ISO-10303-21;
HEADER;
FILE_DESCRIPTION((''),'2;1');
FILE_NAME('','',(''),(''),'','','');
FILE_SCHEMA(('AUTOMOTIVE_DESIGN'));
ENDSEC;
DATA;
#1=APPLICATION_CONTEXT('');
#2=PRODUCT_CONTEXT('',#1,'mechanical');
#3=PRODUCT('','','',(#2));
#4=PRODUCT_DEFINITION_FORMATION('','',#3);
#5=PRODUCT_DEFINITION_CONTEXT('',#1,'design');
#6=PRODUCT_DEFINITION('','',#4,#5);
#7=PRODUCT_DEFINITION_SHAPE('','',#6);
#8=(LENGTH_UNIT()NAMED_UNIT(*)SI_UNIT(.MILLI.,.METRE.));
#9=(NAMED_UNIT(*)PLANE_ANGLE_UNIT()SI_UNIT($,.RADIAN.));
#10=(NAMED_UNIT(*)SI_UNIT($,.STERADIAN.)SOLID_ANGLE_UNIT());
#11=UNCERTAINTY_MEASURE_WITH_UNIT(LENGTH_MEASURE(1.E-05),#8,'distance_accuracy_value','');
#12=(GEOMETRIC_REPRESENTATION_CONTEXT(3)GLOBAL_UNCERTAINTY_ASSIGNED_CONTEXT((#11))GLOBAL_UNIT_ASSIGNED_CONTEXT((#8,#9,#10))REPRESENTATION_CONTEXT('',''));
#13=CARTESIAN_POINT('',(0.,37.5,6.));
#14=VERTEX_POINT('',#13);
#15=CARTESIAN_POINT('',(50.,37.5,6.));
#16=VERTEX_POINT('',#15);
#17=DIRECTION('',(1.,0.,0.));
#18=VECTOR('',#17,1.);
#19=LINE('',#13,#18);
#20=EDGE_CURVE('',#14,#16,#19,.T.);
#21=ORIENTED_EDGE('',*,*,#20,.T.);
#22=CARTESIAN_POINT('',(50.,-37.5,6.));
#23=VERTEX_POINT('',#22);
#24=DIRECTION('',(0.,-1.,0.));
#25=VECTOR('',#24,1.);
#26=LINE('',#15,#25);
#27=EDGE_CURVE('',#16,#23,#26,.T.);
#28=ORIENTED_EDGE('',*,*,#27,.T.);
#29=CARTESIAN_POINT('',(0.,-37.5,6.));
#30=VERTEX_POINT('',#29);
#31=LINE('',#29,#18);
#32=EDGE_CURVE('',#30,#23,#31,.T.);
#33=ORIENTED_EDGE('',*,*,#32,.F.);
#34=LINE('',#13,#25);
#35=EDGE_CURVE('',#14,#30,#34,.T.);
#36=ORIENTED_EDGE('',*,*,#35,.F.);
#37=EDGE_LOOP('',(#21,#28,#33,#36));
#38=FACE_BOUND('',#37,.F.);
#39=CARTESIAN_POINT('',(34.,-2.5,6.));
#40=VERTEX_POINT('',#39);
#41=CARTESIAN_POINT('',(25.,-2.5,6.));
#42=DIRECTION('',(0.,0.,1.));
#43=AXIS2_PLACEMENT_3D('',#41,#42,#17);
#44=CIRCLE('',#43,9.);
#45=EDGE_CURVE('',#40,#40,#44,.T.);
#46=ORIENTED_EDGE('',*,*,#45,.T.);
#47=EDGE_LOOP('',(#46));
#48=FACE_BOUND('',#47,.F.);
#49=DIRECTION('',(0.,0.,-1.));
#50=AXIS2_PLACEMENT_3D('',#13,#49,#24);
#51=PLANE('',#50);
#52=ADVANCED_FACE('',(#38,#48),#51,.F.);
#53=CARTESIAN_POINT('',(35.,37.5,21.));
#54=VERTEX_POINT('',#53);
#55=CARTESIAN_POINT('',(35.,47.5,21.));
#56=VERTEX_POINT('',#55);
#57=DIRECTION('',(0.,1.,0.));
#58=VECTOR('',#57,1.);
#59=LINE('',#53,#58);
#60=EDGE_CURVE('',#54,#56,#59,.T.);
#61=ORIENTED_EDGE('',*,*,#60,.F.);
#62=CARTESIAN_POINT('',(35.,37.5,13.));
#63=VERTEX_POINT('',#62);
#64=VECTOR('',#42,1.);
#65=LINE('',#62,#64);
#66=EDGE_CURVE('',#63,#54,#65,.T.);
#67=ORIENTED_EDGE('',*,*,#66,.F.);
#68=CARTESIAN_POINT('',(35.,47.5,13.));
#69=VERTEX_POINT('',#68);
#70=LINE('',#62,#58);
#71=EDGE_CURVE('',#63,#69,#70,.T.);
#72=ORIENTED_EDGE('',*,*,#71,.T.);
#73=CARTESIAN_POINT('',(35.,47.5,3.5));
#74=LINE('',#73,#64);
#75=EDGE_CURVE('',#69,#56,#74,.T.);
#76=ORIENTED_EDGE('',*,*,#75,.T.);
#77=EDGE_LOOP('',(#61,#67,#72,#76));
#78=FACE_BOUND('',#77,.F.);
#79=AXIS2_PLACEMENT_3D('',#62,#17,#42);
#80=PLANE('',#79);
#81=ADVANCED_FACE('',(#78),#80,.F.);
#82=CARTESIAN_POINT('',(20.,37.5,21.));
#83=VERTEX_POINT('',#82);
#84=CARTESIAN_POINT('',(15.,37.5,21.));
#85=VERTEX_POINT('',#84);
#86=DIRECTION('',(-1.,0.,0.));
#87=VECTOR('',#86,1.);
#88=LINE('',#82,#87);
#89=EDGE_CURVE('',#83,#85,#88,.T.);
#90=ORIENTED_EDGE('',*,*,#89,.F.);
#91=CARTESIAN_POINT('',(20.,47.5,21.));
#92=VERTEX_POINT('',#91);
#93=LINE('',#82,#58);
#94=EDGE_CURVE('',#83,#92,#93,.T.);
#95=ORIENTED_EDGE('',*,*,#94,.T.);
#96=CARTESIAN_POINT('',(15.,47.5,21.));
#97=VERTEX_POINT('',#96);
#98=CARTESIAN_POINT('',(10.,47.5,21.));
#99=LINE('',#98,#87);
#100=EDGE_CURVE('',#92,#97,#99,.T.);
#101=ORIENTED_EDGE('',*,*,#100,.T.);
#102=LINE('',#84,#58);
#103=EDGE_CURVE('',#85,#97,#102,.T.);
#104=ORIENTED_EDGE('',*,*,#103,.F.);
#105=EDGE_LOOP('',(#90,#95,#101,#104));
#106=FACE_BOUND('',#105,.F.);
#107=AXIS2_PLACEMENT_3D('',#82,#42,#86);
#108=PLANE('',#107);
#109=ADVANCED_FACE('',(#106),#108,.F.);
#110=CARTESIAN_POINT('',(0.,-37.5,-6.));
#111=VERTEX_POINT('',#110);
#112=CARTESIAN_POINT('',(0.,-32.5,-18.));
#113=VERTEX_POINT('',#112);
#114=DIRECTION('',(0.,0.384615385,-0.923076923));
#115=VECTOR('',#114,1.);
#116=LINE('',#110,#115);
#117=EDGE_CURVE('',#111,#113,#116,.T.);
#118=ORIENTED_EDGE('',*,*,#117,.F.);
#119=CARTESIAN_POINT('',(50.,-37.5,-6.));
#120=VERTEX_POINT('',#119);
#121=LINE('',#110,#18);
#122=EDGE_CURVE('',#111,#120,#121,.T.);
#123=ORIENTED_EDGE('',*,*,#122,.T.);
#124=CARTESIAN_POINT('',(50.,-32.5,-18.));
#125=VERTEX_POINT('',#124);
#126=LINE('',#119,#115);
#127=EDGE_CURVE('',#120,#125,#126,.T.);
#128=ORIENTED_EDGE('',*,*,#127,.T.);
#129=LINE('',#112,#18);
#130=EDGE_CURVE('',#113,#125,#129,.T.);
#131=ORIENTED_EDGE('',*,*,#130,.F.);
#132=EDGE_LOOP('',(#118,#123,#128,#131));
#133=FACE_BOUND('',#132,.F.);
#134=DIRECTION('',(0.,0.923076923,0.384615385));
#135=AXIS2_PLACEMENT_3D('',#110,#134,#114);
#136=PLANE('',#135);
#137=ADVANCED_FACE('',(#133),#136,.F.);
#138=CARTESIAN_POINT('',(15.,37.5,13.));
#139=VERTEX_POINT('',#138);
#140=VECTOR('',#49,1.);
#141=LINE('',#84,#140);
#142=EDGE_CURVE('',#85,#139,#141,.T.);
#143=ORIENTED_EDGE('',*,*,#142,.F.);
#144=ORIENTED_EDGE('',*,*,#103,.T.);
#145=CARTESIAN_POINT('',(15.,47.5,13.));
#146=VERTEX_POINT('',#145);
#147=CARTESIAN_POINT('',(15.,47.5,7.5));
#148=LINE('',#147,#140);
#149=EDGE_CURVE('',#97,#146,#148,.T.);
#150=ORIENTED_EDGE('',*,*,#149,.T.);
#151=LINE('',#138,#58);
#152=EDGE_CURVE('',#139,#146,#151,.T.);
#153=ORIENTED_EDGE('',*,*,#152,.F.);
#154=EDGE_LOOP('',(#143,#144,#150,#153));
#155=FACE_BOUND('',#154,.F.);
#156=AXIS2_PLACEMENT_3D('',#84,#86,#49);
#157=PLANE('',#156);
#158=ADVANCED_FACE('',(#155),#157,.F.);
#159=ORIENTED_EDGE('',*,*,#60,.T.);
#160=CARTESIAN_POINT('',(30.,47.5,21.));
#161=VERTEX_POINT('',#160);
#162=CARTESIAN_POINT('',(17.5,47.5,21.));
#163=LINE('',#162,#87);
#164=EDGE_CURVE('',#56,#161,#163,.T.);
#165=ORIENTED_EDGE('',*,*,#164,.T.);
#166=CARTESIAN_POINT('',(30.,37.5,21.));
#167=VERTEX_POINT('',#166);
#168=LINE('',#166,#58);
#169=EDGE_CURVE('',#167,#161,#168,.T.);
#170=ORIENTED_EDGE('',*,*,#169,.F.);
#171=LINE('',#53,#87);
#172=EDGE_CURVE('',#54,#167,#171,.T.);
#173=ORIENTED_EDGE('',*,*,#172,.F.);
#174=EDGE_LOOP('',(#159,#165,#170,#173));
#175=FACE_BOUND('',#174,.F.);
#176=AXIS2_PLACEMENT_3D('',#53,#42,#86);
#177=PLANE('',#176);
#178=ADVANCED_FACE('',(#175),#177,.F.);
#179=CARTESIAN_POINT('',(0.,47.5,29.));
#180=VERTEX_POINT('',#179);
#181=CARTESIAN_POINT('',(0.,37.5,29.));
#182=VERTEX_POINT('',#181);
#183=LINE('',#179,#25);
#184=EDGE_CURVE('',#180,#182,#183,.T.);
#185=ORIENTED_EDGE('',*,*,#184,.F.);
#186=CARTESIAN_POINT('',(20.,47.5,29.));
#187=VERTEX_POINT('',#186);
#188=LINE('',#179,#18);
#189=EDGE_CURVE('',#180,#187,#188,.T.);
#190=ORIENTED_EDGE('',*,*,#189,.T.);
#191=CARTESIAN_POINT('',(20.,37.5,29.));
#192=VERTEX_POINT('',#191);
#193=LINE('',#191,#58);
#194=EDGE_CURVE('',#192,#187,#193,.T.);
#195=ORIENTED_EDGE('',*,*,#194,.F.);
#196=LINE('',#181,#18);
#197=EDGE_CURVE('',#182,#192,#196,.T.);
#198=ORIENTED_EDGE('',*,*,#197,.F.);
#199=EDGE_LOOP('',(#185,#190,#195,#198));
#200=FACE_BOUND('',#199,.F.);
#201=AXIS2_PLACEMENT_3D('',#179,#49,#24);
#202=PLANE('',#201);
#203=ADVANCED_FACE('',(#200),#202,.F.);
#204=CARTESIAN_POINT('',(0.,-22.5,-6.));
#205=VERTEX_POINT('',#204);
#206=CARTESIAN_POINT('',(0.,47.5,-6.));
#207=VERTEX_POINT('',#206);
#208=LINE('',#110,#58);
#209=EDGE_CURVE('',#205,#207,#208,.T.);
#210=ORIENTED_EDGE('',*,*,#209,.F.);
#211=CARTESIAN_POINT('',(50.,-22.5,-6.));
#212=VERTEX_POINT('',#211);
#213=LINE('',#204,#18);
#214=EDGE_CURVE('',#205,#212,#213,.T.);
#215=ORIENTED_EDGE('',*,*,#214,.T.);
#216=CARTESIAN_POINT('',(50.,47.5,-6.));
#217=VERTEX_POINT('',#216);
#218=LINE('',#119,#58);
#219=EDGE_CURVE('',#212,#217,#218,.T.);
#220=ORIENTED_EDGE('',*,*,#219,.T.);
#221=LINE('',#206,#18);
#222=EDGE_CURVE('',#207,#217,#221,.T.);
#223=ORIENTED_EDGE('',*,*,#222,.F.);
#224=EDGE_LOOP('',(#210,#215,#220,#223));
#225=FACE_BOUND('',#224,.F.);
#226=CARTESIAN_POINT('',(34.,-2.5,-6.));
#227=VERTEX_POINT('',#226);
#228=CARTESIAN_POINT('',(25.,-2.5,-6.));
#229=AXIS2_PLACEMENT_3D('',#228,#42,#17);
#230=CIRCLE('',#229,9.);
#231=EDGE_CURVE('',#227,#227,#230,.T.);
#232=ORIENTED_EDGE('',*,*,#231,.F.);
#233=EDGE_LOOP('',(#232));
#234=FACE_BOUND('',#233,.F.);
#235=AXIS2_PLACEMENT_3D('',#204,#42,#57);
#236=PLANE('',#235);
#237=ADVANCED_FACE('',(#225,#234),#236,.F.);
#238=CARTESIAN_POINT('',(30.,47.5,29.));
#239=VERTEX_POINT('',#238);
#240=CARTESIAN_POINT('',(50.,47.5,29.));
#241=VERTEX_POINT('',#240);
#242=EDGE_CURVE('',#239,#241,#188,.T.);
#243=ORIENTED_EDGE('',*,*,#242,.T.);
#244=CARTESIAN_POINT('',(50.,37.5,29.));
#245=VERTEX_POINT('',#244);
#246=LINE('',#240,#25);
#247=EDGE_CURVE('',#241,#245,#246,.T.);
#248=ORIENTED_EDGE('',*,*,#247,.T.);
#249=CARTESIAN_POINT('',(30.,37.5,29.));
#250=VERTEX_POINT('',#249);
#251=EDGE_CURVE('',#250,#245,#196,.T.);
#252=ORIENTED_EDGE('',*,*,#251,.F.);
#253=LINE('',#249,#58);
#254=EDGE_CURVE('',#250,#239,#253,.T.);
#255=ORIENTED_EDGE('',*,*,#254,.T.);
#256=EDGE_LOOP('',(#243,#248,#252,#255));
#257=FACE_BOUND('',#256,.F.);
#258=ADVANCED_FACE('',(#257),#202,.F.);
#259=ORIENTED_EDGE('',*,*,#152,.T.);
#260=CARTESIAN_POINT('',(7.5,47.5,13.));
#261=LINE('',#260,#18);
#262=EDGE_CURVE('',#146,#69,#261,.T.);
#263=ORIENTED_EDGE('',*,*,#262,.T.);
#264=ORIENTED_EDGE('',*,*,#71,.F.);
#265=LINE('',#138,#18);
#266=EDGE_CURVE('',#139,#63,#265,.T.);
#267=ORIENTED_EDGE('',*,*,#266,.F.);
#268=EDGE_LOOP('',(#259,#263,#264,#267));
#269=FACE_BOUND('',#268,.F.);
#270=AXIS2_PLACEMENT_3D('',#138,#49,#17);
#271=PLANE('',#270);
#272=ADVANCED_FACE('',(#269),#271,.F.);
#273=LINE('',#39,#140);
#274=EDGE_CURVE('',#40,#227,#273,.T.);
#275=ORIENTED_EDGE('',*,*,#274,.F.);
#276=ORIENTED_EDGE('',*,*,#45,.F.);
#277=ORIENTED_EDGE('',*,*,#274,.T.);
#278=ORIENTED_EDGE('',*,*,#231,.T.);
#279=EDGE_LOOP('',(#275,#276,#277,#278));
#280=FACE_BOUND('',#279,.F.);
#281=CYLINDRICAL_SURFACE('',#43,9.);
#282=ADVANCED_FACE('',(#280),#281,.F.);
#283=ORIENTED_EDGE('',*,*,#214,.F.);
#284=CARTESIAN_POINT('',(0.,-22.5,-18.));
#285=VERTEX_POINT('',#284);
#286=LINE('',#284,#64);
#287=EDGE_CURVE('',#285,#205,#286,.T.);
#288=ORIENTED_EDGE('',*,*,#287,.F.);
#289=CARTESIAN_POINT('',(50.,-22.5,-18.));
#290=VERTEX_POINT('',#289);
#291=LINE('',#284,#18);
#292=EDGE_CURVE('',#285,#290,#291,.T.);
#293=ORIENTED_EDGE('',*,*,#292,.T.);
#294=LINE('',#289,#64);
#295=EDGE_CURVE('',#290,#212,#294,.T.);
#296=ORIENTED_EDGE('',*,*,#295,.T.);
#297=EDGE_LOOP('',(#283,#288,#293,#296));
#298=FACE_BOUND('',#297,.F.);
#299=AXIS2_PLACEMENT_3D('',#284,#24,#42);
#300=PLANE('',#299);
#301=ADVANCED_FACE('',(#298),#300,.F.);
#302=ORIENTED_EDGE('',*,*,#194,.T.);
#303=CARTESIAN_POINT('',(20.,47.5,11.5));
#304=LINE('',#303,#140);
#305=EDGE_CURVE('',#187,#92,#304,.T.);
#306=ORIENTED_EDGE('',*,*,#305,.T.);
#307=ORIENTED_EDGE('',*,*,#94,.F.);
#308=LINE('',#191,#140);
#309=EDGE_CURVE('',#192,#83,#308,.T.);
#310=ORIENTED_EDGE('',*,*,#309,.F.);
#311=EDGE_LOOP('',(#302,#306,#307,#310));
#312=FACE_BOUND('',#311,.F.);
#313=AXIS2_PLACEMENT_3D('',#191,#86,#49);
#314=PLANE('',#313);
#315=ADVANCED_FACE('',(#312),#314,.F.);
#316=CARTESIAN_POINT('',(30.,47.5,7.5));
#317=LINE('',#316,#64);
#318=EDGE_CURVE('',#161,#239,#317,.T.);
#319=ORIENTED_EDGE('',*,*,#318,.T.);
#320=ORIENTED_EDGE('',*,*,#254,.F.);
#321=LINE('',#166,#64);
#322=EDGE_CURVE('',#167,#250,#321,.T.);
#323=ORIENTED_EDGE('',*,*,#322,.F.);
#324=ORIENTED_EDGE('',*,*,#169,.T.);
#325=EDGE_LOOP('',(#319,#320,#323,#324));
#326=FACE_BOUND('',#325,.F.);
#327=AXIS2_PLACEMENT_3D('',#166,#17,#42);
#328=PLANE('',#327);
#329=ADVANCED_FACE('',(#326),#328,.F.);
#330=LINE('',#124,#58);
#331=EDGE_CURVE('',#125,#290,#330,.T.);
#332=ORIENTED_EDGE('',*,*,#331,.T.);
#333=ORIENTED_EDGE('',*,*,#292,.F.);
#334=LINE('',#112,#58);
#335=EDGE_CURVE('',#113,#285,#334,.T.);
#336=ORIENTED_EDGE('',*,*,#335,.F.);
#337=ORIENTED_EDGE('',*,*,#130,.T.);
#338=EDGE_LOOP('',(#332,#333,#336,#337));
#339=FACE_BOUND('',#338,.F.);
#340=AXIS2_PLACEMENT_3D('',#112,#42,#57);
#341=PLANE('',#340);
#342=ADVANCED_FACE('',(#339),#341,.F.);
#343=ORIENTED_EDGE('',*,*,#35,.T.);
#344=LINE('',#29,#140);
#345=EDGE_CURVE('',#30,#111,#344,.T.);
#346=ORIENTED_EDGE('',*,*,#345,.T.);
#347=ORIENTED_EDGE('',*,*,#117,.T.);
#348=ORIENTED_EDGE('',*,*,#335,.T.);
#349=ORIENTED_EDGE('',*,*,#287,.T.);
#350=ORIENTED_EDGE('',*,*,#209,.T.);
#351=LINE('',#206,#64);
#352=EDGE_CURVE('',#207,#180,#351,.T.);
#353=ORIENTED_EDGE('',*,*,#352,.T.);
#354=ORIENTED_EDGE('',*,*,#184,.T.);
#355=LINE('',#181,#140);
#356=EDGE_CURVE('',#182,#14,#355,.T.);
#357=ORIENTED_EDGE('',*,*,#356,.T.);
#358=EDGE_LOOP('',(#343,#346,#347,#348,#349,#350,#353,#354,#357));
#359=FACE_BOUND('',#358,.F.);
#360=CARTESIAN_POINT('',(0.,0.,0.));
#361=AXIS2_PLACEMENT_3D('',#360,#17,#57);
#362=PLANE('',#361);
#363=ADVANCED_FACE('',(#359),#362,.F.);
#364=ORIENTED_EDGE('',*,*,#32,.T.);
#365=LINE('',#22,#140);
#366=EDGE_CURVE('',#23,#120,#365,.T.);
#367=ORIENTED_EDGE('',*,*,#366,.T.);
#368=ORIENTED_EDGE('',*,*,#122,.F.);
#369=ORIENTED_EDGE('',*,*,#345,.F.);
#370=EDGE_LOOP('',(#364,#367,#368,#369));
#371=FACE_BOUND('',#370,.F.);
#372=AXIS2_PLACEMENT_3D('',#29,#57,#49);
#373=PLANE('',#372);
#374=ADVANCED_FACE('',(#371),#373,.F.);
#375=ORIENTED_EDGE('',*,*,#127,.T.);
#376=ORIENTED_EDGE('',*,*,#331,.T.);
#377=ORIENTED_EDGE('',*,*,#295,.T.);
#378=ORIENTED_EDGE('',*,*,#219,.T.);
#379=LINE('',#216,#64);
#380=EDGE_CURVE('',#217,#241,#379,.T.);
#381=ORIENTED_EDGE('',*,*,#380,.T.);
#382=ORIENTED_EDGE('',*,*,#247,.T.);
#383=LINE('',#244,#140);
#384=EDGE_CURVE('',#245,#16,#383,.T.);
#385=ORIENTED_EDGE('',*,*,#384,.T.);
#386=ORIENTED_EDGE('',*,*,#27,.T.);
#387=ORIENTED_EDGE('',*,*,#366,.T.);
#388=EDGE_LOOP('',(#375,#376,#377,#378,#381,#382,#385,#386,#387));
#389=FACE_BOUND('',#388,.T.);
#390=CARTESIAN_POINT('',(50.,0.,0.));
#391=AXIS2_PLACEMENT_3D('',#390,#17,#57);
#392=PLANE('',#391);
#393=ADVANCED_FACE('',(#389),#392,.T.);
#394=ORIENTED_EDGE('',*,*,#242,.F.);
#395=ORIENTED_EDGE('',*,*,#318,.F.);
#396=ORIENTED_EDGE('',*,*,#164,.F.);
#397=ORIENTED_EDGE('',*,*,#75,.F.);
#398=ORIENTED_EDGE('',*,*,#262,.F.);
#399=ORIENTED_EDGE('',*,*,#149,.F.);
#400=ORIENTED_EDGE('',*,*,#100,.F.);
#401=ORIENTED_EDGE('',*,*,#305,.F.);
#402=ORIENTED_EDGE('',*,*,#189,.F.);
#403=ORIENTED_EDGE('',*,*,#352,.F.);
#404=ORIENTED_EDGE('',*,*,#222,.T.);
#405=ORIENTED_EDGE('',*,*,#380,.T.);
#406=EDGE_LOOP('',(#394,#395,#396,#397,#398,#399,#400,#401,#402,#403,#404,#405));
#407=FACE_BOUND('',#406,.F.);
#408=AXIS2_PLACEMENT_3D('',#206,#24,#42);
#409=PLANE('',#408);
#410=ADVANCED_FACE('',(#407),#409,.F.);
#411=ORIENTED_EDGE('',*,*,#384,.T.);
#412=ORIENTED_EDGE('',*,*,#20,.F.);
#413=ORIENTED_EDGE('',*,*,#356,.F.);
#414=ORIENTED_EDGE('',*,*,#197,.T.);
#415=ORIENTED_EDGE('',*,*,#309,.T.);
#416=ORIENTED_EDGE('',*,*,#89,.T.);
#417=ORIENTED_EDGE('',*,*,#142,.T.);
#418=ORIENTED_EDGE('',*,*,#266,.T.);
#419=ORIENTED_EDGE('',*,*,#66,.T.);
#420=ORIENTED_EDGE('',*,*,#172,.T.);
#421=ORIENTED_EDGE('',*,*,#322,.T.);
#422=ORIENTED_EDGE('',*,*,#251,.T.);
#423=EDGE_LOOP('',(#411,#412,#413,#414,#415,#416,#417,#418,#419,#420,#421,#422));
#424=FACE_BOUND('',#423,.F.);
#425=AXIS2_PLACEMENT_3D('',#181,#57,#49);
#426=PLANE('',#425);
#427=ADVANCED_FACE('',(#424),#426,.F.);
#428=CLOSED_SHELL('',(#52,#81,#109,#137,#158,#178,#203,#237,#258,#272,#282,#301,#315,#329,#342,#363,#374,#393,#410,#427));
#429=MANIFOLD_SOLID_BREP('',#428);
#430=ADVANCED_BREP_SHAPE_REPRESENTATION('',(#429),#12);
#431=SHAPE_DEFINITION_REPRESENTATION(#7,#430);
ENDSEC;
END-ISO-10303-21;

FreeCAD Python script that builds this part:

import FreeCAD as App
import Part
import Sketcher

V = App.Vector


def add_polygon(sketch, points):
    """Adds a closed chain of lines whose ends are joined by coincident constraints."""
    first, n = sketch.GeometryCount, len(points)
    for a, b in zip(points, points[1:] + points[:1]):
        sketch.addGeometry(Part.LineSegment(App.Vector(*a, 0), App.Vector(*b, 0)), False)
    for i in range(n):
        sketch.addConstraint(Sketcher.Constraint("Coincident", first + i, 2, first + (i + 1) % n, 1))

doc = App.newDocument("Part")
body = doc.addObject("PartDesign::Body", "Body")

# Sketch on YZ plane
sketch1 = body.newObject("Sketcher::SketchObject", "Sketch")
sketch1.AttachmentSupport = (doc.getObject("YZ_Plane"), [""])
sketch1.MapMode = "FlatFace"
add_polygon(sketch1, [(37.5, 6), (-37.5, 6), (-37.5, -6), (-32.5, -18), (-22.5, -18), (-22.5, -6), (47.5, -6), (47.5, 29), (37.5, 29)])  # lines 0-8
sketch1.addConstraint([
    Sketcher.Constraint("Horizontal", 0),
    Sketcher.Constraint("Vertical", 1),
    Sketcher.Constraint("Horizontal", 3),
    Sketcher.Constraint("Vertical", 4),
    Sketcher.Constraint("Horizontal", 5),
    Sketcher.Constraint("Vertical", 6),
    Sketcher.Constraint("Horizontal", 7),
    Sketcher.Constraint("Vertical", 8),
    Sketcher.Constraint("Symmetric", 1, 2, 8, 2, -1, 1),
    Sketcher.Constraint("Horizontal", 1, 2, 4, 2),
    Sketcher.Constraint("Equal", 3, 7),
    Sketcher.Constraint("Equal", 1, 4),
    Sketcher.Constraint("DistanceX", 0, 2, 0, 1, 75.0),
    Sketcher.Constraint("DistanceX", 3, 1, 3, 2, 10.0),
    Sketcher.Constraint("DistanceX", 5, 1, 5, 2, 70.0),
    Sketcher.Constraint("DistanceY", 1, 2, 1, 1, 12.0),
    Sketcher.Constraint("DistanceY", 6, 1, 6, 2, 35.0),
])
pad1 = body.newObject("PartDesign::Pad", "Pad")
pad1.Profile = sketch1
pad1.Length = 50

# Sketch on XZ plane
sketch2 = body.newObject("Sketcher::SketchObject", "Sketch001")
sketch2.AttachmentSupport = (doc.getObject("XZ_Plane"), [""])
sketch2.MapMode = "FlatFace"
sketch2.AttachmentOffset = App.Placement(V(0, 0, -37.5), App.Rotation())
add_polygon(sketch2, [(30, 29), (20, 29), (20, 21), (15, 21), (15, 13), (35, 13), (35, 21), (30, 21)])  # lines 0-7
sketch2.addConstraint([
    Sketcher.Constraint("Horizontal", 0),
    Sketcher.Constraint("Vertical", 1),
    Sketcher.Constraint("Horizontal", 2),
    Sketcher.Constraint("Vertical", 3),
    Sketcher.Constraint("Horizontal", 4),
    Sketcher.Constraint("Vertical", 5),
    Sketcher.Constraint("Horizontal", 6),
    Sketcher.Constraint("Vertical", 7),
    Sketcher.Constraint("Horizontal", 2, 2, 5, 2),
    Sketcher.Constraint("Equal", 2, 6),
    Sketcher.Constraint("Equal", 1, 3),
    Sketcher.Constraint("DistanceX", 0, 2, 0, 1, 10.0),
    Sketcher.Constraint("DistanceX", 2, 2, 2, 1, 5.0),
    Sketcher.Constraint("DistanceY", 1, 2, 1, 1, 8.0),
    Sketcher.Constraint("DistanceX", -1, 1, 0, 2, 20.0),
    Sketcher.Constraint("DistanceY", -1, 1, 0, 2, 29.0),
])
pocket1 = body.newObject("PartDesign::Pocket", "Pocket")
pocket1.Profile = sketch2
pocket1.Length = 25

# Sketch on XY plane
sketch3 = body.newObject("Sketcher::SketchObject", "Sketch002")
sketch3.AttachmentSupport = (doc.getObject("XY_Plane"), [""])
sketch3.MapMode = "FlatFace"
sketch3.AttachmentOffset = App.Placement(V(0, 0, 6), App.Rotation())
sketch3.addGeometry(Part.Circle(V(25, -2.5, 0), V(0, 0, 1), 9), False)
sketch3.addConstraint([
    Sketcher.Constraint("Diameter", 0, 18.0),
    Sketcher.Constraint("DistanceX", -1, 1, 0, 3, 25.0),
    Sketcher.Constraint("DistanceY", 0, 3, -1, 1, 2.5),
])
pocket2 = body.newObject("PartDesign::Pocket", "Pocket001")
pocket2.Profile = sketch3
pocket2.Length = 25

doc.recompute()
